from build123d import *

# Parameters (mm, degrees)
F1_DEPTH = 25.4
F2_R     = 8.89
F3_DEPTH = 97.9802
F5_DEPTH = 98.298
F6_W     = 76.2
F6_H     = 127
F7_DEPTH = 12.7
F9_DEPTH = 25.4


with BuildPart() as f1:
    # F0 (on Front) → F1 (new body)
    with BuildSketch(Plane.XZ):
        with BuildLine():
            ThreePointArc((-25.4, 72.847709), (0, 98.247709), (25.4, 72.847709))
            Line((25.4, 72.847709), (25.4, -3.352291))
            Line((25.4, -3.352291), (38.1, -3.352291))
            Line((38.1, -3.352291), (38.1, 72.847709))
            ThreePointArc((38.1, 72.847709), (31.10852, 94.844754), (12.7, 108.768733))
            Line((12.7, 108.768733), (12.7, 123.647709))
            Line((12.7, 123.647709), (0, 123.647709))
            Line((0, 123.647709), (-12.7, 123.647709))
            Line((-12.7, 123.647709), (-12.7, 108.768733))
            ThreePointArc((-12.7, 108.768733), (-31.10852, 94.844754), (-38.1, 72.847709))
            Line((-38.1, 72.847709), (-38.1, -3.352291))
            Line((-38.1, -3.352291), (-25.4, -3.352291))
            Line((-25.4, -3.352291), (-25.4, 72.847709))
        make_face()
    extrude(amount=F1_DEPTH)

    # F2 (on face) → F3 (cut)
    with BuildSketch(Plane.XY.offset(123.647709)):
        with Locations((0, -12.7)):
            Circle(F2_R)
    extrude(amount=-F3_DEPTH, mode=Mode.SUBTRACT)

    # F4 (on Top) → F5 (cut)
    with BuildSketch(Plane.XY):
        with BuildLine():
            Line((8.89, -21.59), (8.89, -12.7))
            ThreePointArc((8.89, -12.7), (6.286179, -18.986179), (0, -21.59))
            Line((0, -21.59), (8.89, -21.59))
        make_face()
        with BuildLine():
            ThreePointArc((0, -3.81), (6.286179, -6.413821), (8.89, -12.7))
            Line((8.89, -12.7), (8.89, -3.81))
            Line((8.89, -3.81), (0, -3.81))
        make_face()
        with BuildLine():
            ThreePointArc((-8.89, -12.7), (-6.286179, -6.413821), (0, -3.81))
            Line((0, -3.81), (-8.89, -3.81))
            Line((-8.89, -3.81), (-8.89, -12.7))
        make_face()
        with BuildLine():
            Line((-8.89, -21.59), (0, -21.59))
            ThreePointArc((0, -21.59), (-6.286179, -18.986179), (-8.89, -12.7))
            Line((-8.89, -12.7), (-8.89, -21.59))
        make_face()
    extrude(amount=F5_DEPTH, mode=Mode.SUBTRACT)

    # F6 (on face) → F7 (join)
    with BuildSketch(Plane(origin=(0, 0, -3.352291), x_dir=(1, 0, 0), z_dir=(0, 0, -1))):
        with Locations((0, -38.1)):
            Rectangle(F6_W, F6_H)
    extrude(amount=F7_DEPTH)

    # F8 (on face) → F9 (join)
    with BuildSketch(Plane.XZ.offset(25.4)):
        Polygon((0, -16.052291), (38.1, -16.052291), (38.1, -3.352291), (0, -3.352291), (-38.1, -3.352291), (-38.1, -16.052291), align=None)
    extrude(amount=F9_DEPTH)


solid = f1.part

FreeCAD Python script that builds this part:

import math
import FreeCAD as App
import Part
import Sketcher
Q = App.Units.Quantity

doc = App.newDocument("Part")
params = doc.addObject("Spreadsheet::Sheet", "Params")
for row, (alias, value) in enumerate([
    ("sketch1_radius", "1 in"),
    ("sketch1_radius2", "1.4999999 in"),
    ("sketch1_width", "1 in"),
    ("sketch1_height", "3 in"),
    ("pad1_length", "1 in"),
    ("sketch2_diameter", "0.7 in"),
    ("pocket1_length", "97.9802 mm"),
    ("sketch3_radius", "0.35 in"),
    ("pocket2_length", "3.87 in"),
    ("sketch4_width", "3 in"),
    ("sketch4_height", "5 in"),
    ("pad2_length", "0.5 in"),
    ("sketch5_width", "3 in"),
    ("sketch5_height", "0.5 in"),
    ("pad3_length", "1 in"),
], start=1):
    params.set(f"A{row}", alias)
    params.set(f"B{row}", "=" + value)
    params.setAlias(f"B{row}", alias)

body = doc.addObject("PartDesign::Body", "Body")

# Sketch on XZ plane
sketch1 = body.newObject("Sketcher::SketchObject", "Sketch")
sketch1.AttachmentSupport = (doc.getObject("XZ_Plane"), [""])
sketch1.MapMode = "FlatFace"
sketch1.addGeometry([
    Part.ArcOfCircle(Part.Circle(App.Vector(0, 73, 0), App.Vector(0, 0, 1), 25), math.radians(0), math.radians(180)),  # 0
    Part.LineSegment(App.Vector(25, 73, 0), App.Vector(25, -3, 0)),  # 1
    Part.LineSegment(App.Vector(25, -3, 0), App.Vector(38, -3, 0)),  # 2
    Part.LineSegment(App.Vector(38, -3, 0), App.Vector(38, 73, 0)),  # 3
    Part.ArcOfCircle(Part.Circle(App.Vector(0, 73, 0), App.Vector(0, 0, 1), 38), math.radians(0), math.radians(71)),  # 4
    Part.LineSegment(App.Vector(13, 109, 0), App.Vector(13, 124, 0)),  # 5
    Part.LineSegment(App.Vector(13, 124, 0), App.Vector(-13, 124, 0)),  # 6
    Part.LineSegment(App.Vector(-13, 124, 0), App.Vector(-13, 109, 0)),  # 7
    Part.ArcOfCircle(Part.Circle(App.Vector(0, 73, 0), App.Vector(0, 0, 1), 38), math.radians(109), math.radians(180)),  # 8
    Part.LineSegment(App.Vector(-38, 73, 0), App.Vector(-38, -3, 0)),  # 9
    Part.LineSegment(App.Vector(-38, -3, 0), App.Vector(-25, -3, 0)),  # 10
    Part.LineSegment(App.Vector(-25, -3, 0), App.Vector(-25, 73, 0)),  # 11
], False)
sketch1.addConstraint([
    Sketcher.Constraint("Tangent", 0, 1, 1, 1),
    Sketcher.Constraint("Coincident", 1, 2, 2, 1),
    Sketcher.Constraint("Coincident", 2, 2, 3, 1),
    Sketcher.Constraint("Tangent", 3, 2, 4, 1),
    Sketcher.Constraint("Coincident", 4, 2, 5, 1),
    Sketcher.Constraint("Coincident", 5, 2, 6, 1),
    Sketcher.Constraint("Coincident", 6, 2, 7, 1),
    Sketcher.Constraint("Coincident", 7, 2, 8, 1),
    Sketcher.Constraint("Tangent", 8, 2, 9, 1),
    Sketcher.Constraint("Coincident", 9, 2, 10, 1),
    Sketcher.Constraint("Coincident", 10, 2, 11, 1),
    Sketcher.Constraint("Tangent", 11, 2, 0, 2),
    Sketcher.Constraint("Vertical", 1),
    Sketcher.Constraint("Horizontal", 2),
    Sketcher.Constraint("Vertical", 3),
    Sketcher.Constraint("Vertical", 5),
    Sketcher.Constraint("Horizontal", 6),
    Sketcher.Constraint("Vertical", 7),
    Sketcher.Constraint("Vertical", 9),
    Sketcher.Constraint("Horizontal", 10),
    Sketcher.Constraint("Vertical", 11),
    Sketcher.Constraint("Coincident", 4, 3, 0, 3),
    Sketcher.Constraint("Coincident", 8, 3, 0, 3),
    Sketcher.Constraint("Equal", 4, 8),
    Sketcher.Constraint("Symmetric", 4, 2, 7, 2, -2),
    Sketcher.Constraint("Horizontal", 2, 2, 9, 2),
    Sketcher.Constraint("Radius", 0, Q("1 in")),
    Sketcher.Constraint("Radius", 4, Q("1.4999999 in")),
    Sketcher.Constraint("DistanceX", 6, 2, 6, 1, Q("1 in")),
    Sketcher.Constraint("DistanceY", 1, 2, 1, 1, Q("3 in")),
    Sketcher.Constraint("DistanceY", 4, 3, 5, 2, Q("2 in")),
    Sketcher.Constraint("DistanceY", -1, 1, 0, 3, Q("72.847709 mm")),
])
sketch1.setExpression("Constraints[26]", "Params.sketch1_radius")
sketch1.setExpression("Constraints[27]", "Params.sketch1_radius2")
sketch1.setExpression("Constraints[28]", "Params.sketch1_width")
sketch1.setExpression("Constraints[29]", "Params.sketch1_height")
pad1 = body.newObject("PartDesign::Pad", "Pad")
pad1.Profile = sketch1
pad1.setExpression("Length", "Params.pad1_length")

# Sketch on XY plane
sketch2 = body.newObject("Sketcher::SketchObject", "Sketch001")
sketch2.AttachmentSupport = (doc.getObject("XY_Plane"), [""])
sketch2.MapMode = "FlatFace"
sketch2.AttachmentOffset = App.Placement(App.Vector(0, 0, 123.647709), App.Rotation())
sketch2.addGeometry(Part.Circle(App.Vector(0, -13, 0), App.Vector(0, 0, 1), 9), False)
sketch2.addConstraint([
    Sketcher.Constraint("PointOnObject", 0, 3, -2),
    Sketcher.Constraint("Diameter", 0, Q("0.7 in")),
    Sketcher.Constraint("DistanceY", 0, 3, -1, 1, Q("0.5 in")),
])
sketch2.setExpression("Constraints[1]", "Params.sketch2_diameter")
pocket1 = body.newObject("PartDesign::Pocket", "Pocket")
pocket1.Profile = sketch2
pocket1.setExpression("Length", "Params.pocket1_length")

# Sketch on XY plane
sketch3 = body.newObject("Sketcher::SketchObject", "Sketch002")
sketch3.AttachmentSupport = (doc.getObject("XY_Plane"), [""])
sketch3.MapMode = "FlatFace"
sketch3.addGeometry([
    Part.LineSegment(App.Vector(9, -22, 0), App.Vector(9, -13, 0)),  # 0
    Part.ArcOfCircle(Part.Circle(App.Vector(0, -13, 0), App.Vector(0, 0, 1), 9), math.radians(-90), math.radians(0)),  # 1
    Part.LineSegment(App.Vector(0, -22, 0), App.Vector(9, -22, 0)),  # 2
    Part.ArcOfCircle(Part.Circle(App.Vector(0, -13, 0), App.Vector(0, 0, 1), 9), math.radians(0), math.radians(90)),  # 3
    Part.LineSegment(App.Vector(9, -13, 0), App.Vector(9, -4, 0)),  # 4
    Part.LineSegment(App.Vector(9, -4, 0), App.Vector(0, -4, 0)),  # 5
    Part.ArcOfCircle(Part.Circle(App.Vector(0, -13, 0), App.Vector(0, 0, 1), 9), math.radians(90), math.radians(180)),  # 6
    Part.LineSegment(App.Vector(0, -4, 0), App.Vector(-9, -4, 0)),  # 7
    Part.LineSegment(App.Vector(-9, -4, 0), App.Vector(-9, -13, 0)),  # 8
    Part.LineSegment(App.Vector(-9, -22, 0), App.Vector(0, -22, 0)),  # 9
    Part.ArcOfCircle(Part.Circle(App.Vector(0, -13, 0), App.Vector(0, 0, 1), 9), math.radians(-180), math.radians(-90)),  # 10
    Part.LineSegment(App.Vector(-9, -13, 0), App.Vector(-9, -22, 0)),  # 11
], False)
sketch3.addConstraint([
    Sketcher.Constraint("Tangent", 0, 2, 1, 2),
    Sketcher.Constraint("Tangent", 1, 1, 2, 1),
    Sketcher.Constraint("Coincident", 2, 2, 0, 1),
    Sketcher.Constraint("Tangent", 3, 1, 4, 1),
    Sketcher.Constraint("Coincident", 4, 2, 5, 1),
    Sketcher.Constraint("Tangent", 5, 2, 3, 2),
    Sketcher.Constraint("Tangent", 6, 1, 7, 1),
    Sketcher.Constraint("Coincident", 7, 2, 8, 1),
    Sketcher.Constraint("Tangent", 8, 2, 6, 2),
    Sketcher.Constraint("Tangent", 9, 2, 10, 2),
    Sketcher.Constraint("Tangent", 10, 1, 11, 1),
    Sketcher.Constraint("Coincident", 11, 2, 9, 1),
    Sketcher.Constraint("Vertical", 0),
    Sketcher.Constraint("Horizontal", 2),
    Sketcher.Constraint("Vertical", 4),
    Sketcher.Constraint("Horizontal", 5),
    Sketcher.Constraint("Horizontal", 7),
    Sketcher.Constraint("Vertical", 8),
    Sketcher.Constraint("Horizontal", 9),
    Sketcher.Constraint("Vertical", 11),
    Sketcher.Constraint("Coincident", 3, 3, 1, 3),
    Sketcher.Constraint("Coincident", 6, 3, 1, 3),
    Sketcher.Constraint("Coincident", 10, 3, 1, 3),
    Sketcher.Constraint("Equal", 1, 3),
    Sketcher.Constraint("Equal", 3, 6),
    Sketcher.Constraint("Equal", 6, 10),
    Sketcher.Constraint("PointOnObject", 1, 3, -2),
    Sketcher.Constraint("Radius", 1, Q("0.35 in")),
    Sketcher.Constraint("DistanceY", 1, 3, -1, 1, Q("0.5 in")),
])
sketch3.setExpression("Constraints[27]", "Params.sketch3_radius")
pocket2 = body.newObject("PartDesign::Pocket", "Pocket001")
pocket2.Profile = sketch3
pocket2.setExpression("Length", "Params.pocket2_length")
pocket2.Reversed = True

# Sketch on XY plane
sketch4 = body.newObject("Sketcher::SketchObject", "Sketch003")
sketch4.AttachmentSupport = (doc.getObject("XY_Plane"), [""])
sketch4.MapMode = "FlatFace"
sketch4.AttachmentOffset = App.Placement(App.Vector(0, 0, -3.352291), App.Rotation())
sketch4.addGeometry([
    Part.LineSegment(App.Vector(-38, -25, 0), App.Vector(-38, 102, 0)),
    Part.LineSegment(App.Vector(-38, 102, 0), App.Vector(38, 102, 0)),
    Part.LineSegment(App.Vector(38, 102, 0), App.Vector(38, -25, 0)),
    Part.LineSegment(App.Vector(38, -25, 0), App.Vector(-38, -25, 0)),
], False)
sketch4.addConstraint([
    Sketcher.Constraint("Coincident", 0, 2, 1, 1),
    Sketcher.Constraint("Coincident", 1, 2, 2, 1),
    Sketcher.Constraint("Coincident", 2, 2, 3, 1),
    Sketcher.Constraint("Coincident", 3, 2, 0, 1),
    Sketcher.Constraint("Vertical", 0),
    Sketcher.Constraint("Horizontal", 1),
    Sketcher.Constraint("Vertical", 2),
    Sketcher.Constraint("Horizontal", 3),
    Sketcher.Constraint("DistanceX", 1, 1, 1, 2, Q("3 in")),
    Sketcher.Constraint("DistanceY", 0, 1, 0, 2, Q("5 in")),
    Sketcher.Constraint("DistanceY", -1, 1, 0, 2, Q("4 in")),
    Sketcher.Constraint("DistanceX", 0, 2, -1, 1, Q("1.5 in")),
])
sketch4.setExpression("Constraints[8]", "Params.sketch4_width")
sketch4.setExpression("Constraints[9]", "Params.sketch4_height")
pad2 = body.newObject("PartDesign::Pad", "Pad001")
pad2.Profile = sketch4
pad2.setExpression("Length", "Params.pad2_length")
pad2.Reversed = True

# Sketch on XZ plane
sketch5 = body.newObject("Sketcher::SketchObject", "Sketch004")
sketch5.AttachmentSupport = (doc.getObject("XZ_Plane"), [""])
sketch5.MapMode = "FlatFace"
sketch5.AttachmentOffset = App.Placement(App.Vector(0, 0, 1 * 25.4), App.Rotation())
sketch5.addGeometry([
    Part.LineSegment(App.Vector(38, -16, 0), App.Vector(38, -3, 0)),
    Part.LineSegment(App.Vector(38, -3, 0), App.Vector(-38, -3, 0)),
    Part.LineSegment(App.Vector(-38, -3, 0), App.Vector(-38, -16, 0)),
    Part.LineSegment(App.Vector(-38, -16, 0), App.Vector(38, -16, 0)),
], False)
sketch5.addConstraint([
    Sketcher.Constraint("Coincident", 0, 2, 1, 1),
    Sketcher.Constraint("Coincident", 1, 2, 2, 1),
    Sketcher.Constraint("Coincident", 2, 2, 3, 1),
    Sketcher.Constraint("Coincident", 3, 2, 0, 1),
    Sketcher.Constraint("Vertical", 0),
    Sketcher.Constraint("Horizontal", 1),
    Sketcher.Constraint("Vertical", 2),
    Sketcher.Constraint("Horizontal", 3),
    Sketcher.Constraint("DistanceX", 1, 2, 1, 1, Q("3 in")),
    Sketcher.Constraint("DistanceY", 0, 1, 0, 2, Q("0.5 in")),
    Sketcher.Constraint("DistanceX", -1, 1, 0, 2, Q("1.5 in")),
    Sketcher.Constraint("DistanceY", 0, 2, -1, 1, Q("3.352291 mm")),
])
sketch5.setExpression("Constraints[8]", "Params.sketch5_width")
sketch5.setExpression("Constraints[9]", "Params.sketch5_height")
pad3 = body.newObject("PartDesign::Pad", "Pad002")
pad3.Profile = sketch5
pad3.setExpression("Length", "Params.pad3_length")

doc.recompute()
